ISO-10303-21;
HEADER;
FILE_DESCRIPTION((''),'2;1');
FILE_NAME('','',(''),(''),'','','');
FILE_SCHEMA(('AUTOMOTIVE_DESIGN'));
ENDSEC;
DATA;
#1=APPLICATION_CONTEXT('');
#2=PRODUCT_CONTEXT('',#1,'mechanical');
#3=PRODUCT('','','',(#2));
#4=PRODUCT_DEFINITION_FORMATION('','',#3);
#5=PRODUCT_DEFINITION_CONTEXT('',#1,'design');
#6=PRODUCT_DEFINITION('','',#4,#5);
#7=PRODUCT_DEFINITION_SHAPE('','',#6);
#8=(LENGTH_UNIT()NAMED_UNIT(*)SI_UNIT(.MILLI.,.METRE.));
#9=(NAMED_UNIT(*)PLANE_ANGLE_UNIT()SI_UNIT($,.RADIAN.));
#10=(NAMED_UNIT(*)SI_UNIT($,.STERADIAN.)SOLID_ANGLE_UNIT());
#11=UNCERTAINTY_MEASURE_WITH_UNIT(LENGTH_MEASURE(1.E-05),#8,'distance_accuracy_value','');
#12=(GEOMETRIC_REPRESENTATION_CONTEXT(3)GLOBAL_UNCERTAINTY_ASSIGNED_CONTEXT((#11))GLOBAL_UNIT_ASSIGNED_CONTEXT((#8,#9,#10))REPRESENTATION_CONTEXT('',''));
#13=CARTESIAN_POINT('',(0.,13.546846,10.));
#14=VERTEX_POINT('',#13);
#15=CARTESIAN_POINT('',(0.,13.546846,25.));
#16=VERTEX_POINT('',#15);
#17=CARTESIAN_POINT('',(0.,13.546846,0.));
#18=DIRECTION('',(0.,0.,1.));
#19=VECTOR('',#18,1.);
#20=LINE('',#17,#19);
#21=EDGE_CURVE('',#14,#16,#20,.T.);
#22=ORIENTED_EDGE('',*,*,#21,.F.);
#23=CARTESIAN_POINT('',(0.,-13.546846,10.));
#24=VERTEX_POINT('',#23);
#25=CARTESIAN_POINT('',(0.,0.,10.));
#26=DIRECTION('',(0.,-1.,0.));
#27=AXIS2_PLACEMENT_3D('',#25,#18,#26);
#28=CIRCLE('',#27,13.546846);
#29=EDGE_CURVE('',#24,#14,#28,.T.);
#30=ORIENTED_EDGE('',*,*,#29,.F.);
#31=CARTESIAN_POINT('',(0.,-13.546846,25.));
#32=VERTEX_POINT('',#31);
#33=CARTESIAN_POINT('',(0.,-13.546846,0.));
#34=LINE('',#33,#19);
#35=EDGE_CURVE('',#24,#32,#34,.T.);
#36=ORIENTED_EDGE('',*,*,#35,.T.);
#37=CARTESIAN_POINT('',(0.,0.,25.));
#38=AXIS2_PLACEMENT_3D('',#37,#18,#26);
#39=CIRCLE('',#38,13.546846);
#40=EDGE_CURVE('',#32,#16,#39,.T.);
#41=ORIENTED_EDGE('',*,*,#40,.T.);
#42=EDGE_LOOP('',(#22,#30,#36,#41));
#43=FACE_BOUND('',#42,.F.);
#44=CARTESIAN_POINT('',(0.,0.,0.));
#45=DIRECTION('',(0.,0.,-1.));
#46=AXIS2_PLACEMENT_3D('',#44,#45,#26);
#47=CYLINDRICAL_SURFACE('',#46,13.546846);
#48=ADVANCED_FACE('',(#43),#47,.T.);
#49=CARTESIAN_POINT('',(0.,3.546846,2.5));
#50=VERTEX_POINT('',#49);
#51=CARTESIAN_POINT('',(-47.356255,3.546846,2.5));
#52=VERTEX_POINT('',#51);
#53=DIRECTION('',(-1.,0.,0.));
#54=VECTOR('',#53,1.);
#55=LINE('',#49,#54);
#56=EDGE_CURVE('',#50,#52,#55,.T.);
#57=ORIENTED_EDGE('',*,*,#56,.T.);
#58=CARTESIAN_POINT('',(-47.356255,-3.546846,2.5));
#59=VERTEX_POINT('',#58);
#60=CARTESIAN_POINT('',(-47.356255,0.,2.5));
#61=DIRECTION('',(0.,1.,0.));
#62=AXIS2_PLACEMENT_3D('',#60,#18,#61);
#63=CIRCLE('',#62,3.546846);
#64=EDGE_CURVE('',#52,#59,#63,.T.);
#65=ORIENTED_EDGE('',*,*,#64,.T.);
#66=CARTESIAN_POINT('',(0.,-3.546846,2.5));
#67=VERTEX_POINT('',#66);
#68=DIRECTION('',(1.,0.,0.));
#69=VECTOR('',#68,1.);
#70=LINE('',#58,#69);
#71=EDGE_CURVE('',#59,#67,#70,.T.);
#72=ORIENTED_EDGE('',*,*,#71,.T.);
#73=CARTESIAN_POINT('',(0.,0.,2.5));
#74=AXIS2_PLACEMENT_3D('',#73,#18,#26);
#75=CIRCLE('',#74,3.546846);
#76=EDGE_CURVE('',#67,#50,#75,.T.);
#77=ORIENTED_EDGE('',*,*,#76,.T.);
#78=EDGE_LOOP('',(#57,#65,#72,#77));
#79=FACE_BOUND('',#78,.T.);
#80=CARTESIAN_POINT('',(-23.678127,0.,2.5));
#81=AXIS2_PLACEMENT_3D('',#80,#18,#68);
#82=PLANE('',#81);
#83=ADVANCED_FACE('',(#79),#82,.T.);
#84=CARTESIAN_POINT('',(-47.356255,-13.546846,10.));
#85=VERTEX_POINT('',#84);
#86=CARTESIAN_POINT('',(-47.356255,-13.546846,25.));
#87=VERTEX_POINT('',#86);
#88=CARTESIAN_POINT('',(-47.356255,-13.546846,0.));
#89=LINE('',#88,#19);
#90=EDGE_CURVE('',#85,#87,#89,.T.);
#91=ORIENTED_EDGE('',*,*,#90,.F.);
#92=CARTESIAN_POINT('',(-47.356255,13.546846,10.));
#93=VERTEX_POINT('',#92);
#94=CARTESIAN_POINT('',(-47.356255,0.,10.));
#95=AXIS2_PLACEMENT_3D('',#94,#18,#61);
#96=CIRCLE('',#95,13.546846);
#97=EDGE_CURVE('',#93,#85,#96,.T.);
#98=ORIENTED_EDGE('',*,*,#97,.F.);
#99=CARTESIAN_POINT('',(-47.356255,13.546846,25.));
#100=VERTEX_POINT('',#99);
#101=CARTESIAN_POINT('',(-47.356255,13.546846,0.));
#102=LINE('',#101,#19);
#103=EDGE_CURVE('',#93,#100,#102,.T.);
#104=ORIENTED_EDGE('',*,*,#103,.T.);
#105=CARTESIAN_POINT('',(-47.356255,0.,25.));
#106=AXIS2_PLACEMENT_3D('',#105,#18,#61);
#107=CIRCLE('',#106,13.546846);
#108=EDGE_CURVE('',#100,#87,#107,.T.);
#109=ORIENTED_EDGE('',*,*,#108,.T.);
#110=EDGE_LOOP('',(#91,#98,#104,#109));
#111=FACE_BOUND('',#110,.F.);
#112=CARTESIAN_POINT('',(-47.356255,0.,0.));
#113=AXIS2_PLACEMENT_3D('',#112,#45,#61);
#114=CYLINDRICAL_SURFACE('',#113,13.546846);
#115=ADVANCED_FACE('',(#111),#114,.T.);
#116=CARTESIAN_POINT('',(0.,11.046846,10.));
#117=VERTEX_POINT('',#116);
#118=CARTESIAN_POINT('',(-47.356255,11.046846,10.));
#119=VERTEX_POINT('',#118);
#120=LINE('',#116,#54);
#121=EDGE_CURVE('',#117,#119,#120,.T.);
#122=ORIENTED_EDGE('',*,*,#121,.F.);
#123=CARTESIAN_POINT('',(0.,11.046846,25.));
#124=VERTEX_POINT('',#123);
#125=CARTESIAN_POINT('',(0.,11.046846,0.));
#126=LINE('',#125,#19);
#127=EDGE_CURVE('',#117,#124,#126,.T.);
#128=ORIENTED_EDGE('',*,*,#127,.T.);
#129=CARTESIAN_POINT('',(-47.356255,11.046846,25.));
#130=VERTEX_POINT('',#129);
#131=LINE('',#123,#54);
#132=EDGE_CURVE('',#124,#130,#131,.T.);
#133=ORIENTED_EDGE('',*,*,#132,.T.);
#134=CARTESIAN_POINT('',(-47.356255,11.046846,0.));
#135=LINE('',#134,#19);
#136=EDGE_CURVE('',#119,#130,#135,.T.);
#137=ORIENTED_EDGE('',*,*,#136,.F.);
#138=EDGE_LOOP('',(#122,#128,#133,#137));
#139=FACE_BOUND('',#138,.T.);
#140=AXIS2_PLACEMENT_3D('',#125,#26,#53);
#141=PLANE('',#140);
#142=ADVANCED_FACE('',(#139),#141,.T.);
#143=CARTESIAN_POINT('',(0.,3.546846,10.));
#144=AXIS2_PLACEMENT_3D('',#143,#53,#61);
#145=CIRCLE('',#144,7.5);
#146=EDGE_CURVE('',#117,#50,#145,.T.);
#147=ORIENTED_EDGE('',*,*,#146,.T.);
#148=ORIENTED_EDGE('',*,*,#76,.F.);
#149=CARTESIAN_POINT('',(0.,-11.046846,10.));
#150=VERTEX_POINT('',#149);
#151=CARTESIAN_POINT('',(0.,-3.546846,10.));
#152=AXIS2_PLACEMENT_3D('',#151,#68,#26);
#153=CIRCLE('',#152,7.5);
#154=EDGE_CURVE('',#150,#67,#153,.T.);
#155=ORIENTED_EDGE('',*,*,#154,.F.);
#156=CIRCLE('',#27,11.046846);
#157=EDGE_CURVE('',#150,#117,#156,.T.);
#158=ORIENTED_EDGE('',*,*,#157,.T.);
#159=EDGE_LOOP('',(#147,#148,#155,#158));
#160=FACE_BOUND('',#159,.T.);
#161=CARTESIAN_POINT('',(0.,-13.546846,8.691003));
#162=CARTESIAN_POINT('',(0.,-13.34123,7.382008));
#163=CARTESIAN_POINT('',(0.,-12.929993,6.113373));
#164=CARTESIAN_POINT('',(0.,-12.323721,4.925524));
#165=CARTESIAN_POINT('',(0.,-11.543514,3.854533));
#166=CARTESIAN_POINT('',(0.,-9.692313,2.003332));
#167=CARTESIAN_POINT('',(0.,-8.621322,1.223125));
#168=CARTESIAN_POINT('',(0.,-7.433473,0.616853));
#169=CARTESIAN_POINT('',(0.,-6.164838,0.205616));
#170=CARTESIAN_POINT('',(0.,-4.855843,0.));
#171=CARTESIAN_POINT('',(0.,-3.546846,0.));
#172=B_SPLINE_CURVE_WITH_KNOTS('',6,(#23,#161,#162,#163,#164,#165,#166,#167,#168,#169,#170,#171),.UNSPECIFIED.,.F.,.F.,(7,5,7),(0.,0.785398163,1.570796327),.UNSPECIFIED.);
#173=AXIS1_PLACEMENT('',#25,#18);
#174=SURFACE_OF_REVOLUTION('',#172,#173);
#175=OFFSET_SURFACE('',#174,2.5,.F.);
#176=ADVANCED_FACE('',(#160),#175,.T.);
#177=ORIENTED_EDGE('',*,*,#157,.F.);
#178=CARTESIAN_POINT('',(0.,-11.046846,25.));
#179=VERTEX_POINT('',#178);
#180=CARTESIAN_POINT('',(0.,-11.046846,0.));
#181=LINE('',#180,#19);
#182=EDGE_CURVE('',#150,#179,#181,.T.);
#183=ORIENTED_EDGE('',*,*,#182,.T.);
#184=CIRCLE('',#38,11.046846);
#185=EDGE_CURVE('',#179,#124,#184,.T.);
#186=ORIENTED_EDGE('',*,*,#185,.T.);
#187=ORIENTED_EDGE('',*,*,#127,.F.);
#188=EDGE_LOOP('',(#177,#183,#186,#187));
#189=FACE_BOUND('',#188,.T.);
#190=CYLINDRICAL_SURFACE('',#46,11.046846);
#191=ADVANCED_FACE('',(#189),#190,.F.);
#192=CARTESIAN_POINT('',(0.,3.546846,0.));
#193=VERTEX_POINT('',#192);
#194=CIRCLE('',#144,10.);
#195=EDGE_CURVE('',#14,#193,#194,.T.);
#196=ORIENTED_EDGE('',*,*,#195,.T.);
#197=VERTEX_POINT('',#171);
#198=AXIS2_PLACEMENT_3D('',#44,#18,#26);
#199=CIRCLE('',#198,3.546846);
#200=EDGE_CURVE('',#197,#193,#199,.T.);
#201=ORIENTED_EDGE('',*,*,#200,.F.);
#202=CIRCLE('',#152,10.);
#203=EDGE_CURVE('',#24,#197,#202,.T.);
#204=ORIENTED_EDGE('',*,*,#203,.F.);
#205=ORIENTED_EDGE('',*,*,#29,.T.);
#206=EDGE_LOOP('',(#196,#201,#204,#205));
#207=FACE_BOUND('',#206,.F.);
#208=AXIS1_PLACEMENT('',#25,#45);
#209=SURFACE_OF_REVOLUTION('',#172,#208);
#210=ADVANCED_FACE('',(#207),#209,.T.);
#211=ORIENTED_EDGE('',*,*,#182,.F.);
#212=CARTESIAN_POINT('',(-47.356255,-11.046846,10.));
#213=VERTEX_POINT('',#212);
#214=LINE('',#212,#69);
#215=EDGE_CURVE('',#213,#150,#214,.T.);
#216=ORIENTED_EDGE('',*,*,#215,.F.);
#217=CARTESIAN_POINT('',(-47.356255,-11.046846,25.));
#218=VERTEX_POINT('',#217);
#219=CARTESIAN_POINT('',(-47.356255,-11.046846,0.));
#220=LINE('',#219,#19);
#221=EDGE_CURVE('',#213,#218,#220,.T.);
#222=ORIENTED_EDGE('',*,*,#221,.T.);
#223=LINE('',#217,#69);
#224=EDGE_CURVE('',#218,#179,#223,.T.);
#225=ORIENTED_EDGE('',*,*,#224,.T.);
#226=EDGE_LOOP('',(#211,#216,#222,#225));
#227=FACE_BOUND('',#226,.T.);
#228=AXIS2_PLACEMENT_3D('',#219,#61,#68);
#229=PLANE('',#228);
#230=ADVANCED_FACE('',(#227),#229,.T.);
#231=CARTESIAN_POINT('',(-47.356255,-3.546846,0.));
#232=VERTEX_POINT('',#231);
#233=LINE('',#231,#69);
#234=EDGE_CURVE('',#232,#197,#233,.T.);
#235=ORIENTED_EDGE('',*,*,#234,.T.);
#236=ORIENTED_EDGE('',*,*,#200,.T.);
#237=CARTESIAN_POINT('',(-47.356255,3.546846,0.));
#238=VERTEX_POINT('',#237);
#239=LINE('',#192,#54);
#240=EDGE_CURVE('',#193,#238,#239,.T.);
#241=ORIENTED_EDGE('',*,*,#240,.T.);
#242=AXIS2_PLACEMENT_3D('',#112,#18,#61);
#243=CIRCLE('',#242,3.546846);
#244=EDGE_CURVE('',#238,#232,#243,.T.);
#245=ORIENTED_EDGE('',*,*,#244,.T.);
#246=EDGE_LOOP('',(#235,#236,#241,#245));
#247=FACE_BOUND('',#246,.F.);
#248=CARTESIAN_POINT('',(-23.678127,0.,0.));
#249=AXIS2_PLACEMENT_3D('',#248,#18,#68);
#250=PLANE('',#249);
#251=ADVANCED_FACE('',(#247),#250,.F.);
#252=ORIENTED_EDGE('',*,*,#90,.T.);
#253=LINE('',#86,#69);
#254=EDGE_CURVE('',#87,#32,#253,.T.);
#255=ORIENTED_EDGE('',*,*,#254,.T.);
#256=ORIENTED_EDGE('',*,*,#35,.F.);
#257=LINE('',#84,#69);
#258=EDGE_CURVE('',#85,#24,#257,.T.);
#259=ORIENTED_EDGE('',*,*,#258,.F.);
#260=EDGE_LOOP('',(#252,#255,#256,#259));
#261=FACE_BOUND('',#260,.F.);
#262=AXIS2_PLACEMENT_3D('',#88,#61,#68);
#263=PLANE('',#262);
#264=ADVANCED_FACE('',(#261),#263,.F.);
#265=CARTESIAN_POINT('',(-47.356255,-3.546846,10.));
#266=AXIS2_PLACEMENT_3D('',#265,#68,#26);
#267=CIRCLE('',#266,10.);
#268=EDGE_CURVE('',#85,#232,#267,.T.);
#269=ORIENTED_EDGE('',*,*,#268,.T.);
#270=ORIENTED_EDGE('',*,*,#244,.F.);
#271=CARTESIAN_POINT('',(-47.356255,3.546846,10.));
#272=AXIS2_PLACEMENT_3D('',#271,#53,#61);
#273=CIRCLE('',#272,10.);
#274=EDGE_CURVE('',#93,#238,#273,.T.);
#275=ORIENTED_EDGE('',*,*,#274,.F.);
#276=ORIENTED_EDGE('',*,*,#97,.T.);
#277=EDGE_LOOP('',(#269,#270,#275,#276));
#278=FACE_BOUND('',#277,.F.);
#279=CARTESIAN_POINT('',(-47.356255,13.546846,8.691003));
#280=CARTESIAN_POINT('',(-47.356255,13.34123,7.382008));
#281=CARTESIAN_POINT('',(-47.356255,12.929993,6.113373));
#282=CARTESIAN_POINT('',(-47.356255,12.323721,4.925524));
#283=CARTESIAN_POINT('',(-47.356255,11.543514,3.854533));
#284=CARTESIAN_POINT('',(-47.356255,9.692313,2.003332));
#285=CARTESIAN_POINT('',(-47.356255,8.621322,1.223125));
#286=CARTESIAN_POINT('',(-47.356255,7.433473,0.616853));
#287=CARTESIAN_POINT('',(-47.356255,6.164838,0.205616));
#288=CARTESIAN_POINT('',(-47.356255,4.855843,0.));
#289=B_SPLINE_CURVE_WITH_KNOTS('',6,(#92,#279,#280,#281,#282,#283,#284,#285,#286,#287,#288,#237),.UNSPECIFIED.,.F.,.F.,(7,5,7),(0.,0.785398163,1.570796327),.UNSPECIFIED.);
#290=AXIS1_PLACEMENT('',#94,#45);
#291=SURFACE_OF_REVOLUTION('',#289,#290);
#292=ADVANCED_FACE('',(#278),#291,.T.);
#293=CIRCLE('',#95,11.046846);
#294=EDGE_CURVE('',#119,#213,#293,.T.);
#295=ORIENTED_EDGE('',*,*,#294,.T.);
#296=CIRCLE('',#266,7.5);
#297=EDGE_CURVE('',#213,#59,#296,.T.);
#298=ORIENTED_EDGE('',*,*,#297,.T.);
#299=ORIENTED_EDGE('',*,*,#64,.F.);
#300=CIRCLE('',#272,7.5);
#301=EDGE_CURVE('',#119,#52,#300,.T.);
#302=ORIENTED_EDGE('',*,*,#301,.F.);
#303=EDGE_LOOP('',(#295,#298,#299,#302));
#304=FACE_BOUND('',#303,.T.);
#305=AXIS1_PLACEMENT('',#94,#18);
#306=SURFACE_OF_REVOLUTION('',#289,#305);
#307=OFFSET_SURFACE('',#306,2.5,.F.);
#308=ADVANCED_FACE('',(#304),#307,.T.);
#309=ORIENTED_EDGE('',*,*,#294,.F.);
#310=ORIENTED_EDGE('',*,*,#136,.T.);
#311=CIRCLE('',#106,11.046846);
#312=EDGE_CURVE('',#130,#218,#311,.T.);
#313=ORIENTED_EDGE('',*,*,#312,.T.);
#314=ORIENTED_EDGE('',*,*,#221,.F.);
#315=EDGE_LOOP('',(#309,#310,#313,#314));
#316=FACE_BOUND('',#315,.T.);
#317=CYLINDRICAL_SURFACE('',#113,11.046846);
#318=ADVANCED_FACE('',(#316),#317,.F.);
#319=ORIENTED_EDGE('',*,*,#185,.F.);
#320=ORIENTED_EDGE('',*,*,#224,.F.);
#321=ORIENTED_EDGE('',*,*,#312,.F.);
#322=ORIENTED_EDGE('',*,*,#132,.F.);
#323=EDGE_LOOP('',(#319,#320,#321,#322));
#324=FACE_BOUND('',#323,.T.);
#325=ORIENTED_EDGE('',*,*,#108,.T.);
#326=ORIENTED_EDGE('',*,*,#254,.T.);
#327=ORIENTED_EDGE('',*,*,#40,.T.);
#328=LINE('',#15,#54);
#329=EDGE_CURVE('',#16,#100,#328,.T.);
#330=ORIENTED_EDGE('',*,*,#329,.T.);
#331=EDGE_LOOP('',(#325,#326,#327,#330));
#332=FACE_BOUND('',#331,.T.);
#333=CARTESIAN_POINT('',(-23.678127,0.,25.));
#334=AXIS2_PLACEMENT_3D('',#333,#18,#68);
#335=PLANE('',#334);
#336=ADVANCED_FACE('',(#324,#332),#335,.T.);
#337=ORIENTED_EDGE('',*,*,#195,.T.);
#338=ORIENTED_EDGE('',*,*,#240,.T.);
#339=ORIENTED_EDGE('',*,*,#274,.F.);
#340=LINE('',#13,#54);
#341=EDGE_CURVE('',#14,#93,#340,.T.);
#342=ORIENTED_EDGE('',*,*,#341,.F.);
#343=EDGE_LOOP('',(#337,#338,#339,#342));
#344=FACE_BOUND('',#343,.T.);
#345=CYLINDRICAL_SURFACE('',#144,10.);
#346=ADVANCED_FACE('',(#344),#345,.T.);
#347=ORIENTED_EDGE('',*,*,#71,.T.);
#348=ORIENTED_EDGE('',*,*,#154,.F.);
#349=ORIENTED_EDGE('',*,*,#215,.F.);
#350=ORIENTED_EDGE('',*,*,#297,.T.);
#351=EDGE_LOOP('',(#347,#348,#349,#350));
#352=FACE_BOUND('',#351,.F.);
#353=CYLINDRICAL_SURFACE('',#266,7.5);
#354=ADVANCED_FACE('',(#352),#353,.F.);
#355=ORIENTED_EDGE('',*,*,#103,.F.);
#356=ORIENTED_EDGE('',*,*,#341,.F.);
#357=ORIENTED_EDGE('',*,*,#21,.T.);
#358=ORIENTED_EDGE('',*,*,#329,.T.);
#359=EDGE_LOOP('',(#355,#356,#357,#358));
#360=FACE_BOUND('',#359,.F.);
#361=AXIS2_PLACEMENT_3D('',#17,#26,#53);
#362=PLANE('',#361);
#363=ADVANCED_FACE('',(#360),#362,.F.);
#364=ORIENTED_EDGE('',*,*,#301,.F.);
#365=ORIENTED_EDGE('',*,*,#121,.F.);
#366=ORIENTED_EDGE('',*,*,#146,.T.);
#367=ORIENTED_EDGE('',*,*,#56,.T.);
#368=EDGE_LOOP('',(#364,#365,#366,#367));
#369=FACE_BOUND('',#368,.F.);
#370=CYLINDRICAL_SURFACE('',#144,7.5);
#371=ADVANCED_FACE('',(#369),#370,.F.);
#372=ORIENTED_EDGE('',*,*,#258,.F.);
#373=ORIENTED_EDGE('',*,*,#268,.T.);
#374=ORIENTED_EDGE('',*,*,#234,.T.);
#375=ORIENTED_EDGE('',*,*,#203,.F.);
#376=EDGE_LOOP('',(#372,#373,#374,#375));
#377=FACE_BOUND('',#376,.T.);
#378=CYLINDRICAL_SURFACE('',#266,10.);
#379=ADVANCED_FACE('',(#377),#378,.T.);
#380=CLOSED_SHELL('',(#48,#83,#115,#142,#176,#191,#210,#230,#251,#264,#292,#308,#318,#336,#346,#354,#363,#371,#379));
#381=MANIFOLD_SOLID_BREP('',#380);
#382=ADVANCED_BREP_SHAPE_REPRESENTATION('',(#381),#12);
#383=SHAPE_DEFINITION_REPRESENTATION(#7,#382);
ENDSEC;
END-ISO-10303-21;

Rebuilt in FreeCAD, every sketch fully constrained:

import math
import FreeCAD as App
import Part
import Sketcher
Q = App.Units.Quantity


def edges_at(feature, points):
    """Names of the edges that pass closest to the given points."""
    edges = feature.Shape.Edges
    near = lambda p: min(range(len(edges)), key=lambda i: edges[i].distToShape(Part.Vertex(*p))[0])
    return sorted({f"Edge{near(p) + 1}" for p in points})


def faces_at(feature, points):
    """Names of the faces that lie closest to the given points."""
    faces = feature.Shape.Faces
    near = lambda p: min(range(len(faces)), key=lambda i: faces[i].distToShape(Part.Vertex(*p))[0])
    return sorted({f"Face{near(p) + 1}" for p in points})

doc = App.newDocument("Part")
body = doc.addObject("PartDesign::Body", "Body")

sketch1 = doc.addObject("Sketcher::SketchObject", "Sketch")
body.addObject(sketch1)
sketch1.AttachmentSupport = (doc.XY_Plane, [""])
sketch1.MapMode = "FlatFace"
sketch1.addGeometry([
    Part.LineSegment(App.Vector(-47, -14, 0), App.Vector(0, -14, 0)),
    Part.ArcOfCircle(Part.Circle(App.Vector(0, 0, 0), App.Vector(0, 0, 1), 14), math.radians(-90), math.radians(90)),
    Part.LineSegment(App.Vector(0, 14, 0), App.Vector(-47, 14, 0)),
    Part.ArcOfCircle(Part.Circle(App.Vector(-47, 0, 0), App.Vector(0, 0, 1), 14), math.radians(90), math.radians(270)),
], False)
sketch1.addConstraint([
    Sketcher.Constraint("Tangent", 0, 2, 1, 1),
    Sketcher.Constraint("Tangent", 1, 2, 2, 1),
    Sketcher.Constraint("Tangent", 2, 2, 3, 1),
    Sketcher.Constraint("Tangent", 3, 2, 0, 1),
    Sketcher.Constraint("Horizontal", 0),
    Sketcher.Constraint("Horizontal", 2),
    Sketcher.Constraint("Coincident", 1, 3, -1, 1),
    Sketcher.Constraint("Radius", 1, Q("13.546846 mm")),
    Sketcher.Constraint("DistanceX", 0, 1, 0, 2, Q("47.356255 mm")),
])
pad1 = doc.addObject("PartDesign::Pad", "Pad")
body.addObject(pad1)
pad1.Profile = sketch1
pad1.Length = 25

sketch2 = doc.addObject("Sketcher::SketchObject", "Sketch001")
body.addObject(sketch2)
sketch2.AttachmentSupport = (doc.XY_Plane, [""])
sketch2.MapMode = "FlatFace"
sketch2.addGeometry([
    Part.LineSegment(App.Vector(-47, -14, 0), App.Vector(0, -14, 0)),
    Part.ArcOfCircle(Part.Circle(App.Vector(0, 0, 0), App.Vector(0, 0, 1), 14), math.radians(-90), math.radians(90)),
    Part.LineSegment(App.Vector(0, 14, 0), App.Vector(-47, 14, 0)),
    Part.ArcOfCircle(Part.Circle(App.Vector(-47, 0, 0), App.Vector(0, 0, 1), 14), math.radians(90), math.radians(270)),
], False)
sketch2.addConstraint([
    Sketcher.Constraint("Tangent", 0, 2, 1, 1),
    Sketcher.Constraint("Tangent", 1, 2, 2, 1),
    Sketcher.Constraint("Tangent", 2, 2, 3, 1),
    Sketcher.Constraint("Tangent", 3, 2, 0, 1),
    Sketcher.Constraint("Horizontal", 0),
    Sketcher.Constraint("Horizontal", 2),
    Sketcher.Constraint("Coincident", 1, 3, -1, 1),
    Sketcher.Constraint("Radius", 1, Q("13.546846 mm")),
    Sketcher.Constraint("DistanceX", 0, 1, 0, 2, Q("47.356255 mm")),
])
pad2 = doc.addObject("PartDesign::Pad", "Pad001")
body.addObject(pad2)
pad2.Profile = sketch2
pad2.Length = 25
doc.recompute()

fillet = doc.addObject("PartDesign::Fillet", "Fillet")
body.addObject(fillet)
fillet.Base = (pad2, edges_at(pad2, [(-60.903, 0, 0)]))
fillet.Radius = 10
doc.recompute()

thickness = doc.addObject("PartDesign::Thickness", "Thickness")
body.addObject(thickness)
thickness.Base = (fillet, faces_at(fillet, [(-23.678, 0, 25)]))
thickness.Value = 2.5
thickness.Reversed = True
thickness.Join = "Arc"

doc.recompute()
